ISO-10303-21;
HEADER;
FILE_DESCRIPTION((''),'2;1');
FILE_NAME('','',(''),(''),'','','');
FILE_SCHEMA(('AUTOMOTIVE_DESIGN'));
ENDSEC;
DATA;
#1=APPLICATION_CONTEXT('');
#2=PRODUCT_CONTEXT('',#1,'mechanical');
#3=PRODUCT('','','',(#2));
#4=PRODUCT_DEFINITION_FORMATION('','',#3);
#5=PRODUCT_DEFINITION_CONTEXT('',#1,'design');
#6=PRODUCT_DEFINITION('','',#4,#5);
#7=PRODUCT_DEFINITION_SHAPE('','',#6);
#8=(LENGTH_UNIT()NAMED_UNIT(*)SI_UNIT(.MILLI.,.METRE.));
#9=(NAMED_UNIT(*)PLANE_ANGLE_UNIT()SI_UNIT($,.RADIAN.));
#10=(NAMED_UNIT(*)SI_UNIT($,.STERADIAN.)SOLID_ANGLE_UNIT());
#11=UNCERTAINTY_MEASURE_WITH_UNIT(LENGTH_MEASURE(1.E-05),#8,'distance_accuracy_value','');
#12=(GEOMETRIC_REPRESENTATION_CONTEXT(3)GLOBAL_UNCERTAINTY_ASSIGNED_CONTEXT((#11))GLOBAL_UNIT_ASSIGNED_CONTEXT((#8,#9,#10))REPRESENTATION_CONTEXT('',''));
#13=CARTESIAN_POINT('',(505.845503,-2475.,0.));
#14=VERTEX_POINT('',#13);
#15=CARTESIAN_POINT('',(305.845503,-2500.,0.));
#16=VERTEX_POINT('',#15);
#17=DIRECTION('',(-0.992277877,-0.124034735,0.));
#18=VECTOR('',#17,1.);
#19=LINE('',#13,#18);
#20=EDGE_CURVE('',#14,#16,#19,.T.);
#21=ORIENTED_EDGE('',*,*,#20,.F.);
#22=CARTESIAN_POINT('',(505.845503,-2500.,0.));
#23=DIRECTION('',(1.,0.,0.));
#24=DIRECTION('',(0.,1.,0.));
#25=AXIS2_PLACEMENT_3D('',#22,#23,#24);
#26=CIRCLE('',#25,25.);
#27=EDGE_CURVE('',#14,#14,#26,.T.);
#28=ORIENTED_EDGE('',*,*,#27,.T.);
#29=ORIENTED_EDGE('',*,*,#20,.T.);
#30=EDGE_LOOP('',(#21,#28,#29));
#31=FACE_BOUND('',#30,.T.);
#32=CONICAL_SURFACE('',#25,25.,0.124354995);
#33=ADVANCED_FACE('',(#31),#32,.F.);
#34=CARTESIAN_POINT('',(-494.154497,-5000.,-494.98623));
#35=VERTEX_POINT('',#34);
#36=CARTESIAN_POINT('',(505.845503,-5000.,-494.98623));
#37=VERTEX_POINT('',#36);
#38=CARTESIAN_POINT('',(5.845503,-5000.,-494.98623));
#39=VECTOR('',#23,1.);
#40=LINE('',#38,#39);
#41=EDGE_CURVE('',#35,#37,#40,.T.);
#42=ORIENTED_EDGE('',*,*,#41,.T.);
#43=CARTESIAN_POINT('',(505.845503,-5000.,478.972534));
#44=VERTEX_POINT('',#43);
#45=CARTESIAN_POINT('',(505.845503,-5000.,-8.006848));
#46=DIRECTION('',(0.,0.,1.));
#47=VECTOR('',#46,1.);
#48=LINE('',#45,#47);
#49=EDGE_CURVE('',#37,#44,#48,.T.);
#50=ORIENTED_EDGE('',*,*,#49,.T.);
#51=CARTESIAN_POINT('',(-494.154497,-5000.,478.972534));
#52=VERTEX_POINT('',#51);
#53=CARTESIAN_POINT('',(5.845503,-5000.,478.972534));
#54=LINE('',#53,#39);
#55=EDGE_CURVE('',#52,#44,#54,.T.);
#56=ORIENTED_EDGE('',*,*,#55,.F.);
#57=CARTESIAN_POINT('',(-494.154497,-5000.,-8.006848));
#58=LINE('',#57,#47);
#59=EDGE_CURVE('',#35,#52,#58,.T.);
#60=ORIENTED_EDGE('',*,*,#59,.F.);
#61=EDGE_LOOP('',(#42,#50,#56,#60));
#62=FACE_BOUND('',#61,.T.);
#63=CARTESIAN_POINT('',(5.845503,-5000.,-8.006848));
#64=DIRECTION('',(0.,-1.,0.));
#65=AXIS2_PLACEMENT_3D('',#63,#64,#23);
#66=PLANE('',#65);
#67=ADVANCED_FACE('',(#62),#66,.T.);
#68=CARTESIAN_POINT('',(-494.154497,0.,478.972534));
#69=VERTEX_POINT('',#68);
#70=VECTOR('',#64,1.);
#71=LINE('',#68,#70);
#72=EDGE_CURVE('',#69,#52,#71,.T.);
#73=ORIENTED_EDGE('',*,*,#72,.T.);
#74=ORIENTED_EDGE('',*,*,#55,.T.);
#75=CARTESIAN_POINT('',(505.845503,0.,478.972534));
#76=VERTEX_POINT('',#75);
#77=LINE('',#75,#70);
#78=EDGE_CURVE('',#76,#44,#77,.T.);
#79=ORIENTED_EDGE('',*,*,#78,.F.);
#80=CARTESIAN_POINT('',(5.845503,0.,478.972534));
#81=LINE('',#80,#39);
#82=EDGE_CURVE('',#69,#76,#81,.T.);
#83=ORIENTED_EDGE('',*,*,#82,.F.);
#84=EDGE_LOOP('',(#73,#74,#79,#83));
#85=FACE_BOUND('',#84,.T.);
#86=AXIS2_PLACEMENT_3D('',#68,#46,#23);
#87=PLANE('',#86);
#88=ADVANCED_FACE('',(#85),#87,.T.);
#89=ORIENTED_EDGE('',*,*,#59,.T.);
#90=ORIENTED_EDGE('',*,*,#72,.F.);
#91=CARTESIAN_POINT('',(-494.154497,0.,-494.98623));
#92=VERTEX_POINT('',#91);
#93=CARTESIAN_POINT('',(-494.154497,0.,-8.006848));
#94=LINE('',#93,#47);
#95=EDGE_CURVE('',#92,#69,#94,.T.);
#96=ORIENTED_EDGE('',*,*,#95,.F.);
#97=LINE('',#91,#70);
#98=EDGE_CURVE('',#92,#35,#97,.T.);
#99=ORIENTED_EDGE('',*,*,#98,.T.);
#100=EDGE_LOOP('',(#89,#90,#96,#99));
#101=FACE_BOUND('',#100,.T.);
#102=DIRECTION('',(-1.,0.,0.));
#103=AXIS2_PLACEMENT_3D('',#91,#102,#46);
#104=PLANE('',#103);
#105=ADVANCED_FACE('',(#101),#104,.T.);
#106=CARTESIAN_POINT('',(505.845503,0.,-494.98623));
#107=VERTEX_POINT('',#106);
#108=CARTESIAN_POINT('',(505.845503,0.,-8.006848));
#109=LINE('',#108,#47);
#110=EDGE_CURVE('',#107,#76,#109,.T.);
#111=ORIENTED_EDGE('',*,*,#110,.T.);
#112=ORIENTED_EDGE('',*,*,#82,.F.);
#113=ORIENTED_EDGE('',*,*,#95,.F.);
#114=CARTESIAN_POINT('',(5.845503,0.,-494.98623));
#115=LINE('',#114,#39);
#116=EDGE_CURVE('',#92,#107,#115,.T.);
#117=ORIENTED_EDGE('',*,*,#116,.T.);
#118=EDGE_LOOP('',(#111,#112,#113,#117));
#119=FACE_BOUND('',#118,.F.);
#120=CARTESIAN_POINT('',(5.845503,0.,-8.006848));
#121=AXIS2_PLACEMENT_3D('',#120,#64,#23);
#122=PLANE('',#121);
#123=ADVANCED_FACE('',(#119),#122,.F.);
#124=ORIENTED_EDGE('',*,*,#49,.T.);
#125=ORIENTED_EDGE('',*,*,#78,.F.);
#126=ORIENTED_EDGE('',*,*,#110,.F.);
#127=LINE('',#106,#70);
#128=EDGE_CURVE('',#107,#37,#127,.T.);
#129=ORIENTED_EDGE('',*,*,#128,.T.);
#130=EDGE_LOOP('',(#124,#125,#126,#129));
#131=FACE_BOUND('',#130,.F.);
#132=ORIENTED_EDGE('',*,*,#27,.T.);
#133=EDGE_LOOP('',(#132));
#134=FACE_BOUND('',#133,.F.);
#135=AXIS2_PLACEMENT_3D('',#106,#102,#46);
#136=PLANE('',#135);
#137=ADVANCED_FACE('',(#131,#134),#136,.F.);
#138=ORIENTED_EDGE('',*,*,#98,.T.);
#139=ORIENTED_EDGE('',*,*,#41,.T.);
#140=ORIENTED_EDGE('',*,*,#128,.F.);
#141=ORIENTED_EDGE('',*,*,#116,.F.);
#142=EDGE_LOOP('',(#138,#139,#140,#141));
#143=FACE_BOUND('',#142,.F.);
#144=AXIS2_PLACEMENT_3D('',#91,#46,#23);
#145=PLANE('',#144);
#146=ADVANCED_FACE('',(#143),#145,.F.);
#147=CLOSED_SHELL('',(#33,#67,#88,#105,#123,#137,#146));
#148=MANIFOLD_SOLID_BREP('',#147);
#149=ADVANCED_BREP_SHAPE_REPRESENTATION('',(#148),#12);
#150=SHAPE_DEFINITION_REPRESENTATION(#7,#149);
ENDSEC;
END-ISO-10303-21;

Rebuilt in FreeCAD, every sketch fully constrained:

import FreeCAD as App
import Part
import Sketcher


def add_polygon(sketch, points):
    """Adds a closed chain of lines whose ends are joined by coincident constraints."""
    first, n = sketch.GeometryCount, len(points)
    for a, b in zip(points, points[1:] + points[:1]):
        sketch.addGeometry(Part.LineSegment(App.Vector(*a, 0), App.Vector(*b, 0)), False)
    for i in range(n):
        sketch.addConstraint(Sketcher.Constraint("Coincident", first + i, 2, first + (i + 1) % n, 1))

doc = App.newDocument("Part")
params = doc.addObject("Spreadsheet::Sheet", "Params")
for row, (alias, value) in enumerate([
    ("sketch1_width", "1000 mm"),
    ("pad1_length", "5000 mm"),
    ("sketch2_width", "200 mm"),
    ("sketch2_height", "25 mm"),
    ("groove_angle", "360 deg"),
], start=1):
    params.set(f"A{row}", alias)
    params.set(f"B{row}", "=" + value)
    params.setAlias(f"B{row}", alias)

body = doc.addObject("PartDesign::Body", "Body")

# Sketch on XZ plane
sketch1 = body.newObject("Sketcher::SketchObject", "Sketch")
sketch1.AttachmentSupport = (doc.getObject("XZ_Plane"), [""])
sketch1.MapMode = "FlatFace"
add_polygon(sketch1, [(-494, 479), (-494, -495), (506, -495), (506, 479)])  # lines 0-3
sketch1.addConstraint(Sketcher.Constraint("Vertical", 0))
sketch1.addConstraint(Sketcher.Constraint("Horizontal", 1))
sketch1.addConstraint(Sketcher.Constraint("Vertical", 2))
sketch1.addConstraint(Sketcher.Constraint("Horizontal", 3))
sketch1.addConstraint(Sketcher.Constraint("DistanceX", 1, 1, 1, 2, 1000.0))
sketch1.addConstraint(Sketcher.Constraint("DistanceY", 0, 2, 0, 1, 973.958764))
sketch1.addConstraint(Sketcher.Constraint("DistanceY", 0, 2, -1, 1, 494.98623))
sketch1.addConstraint(Sketcher.Constraint("DistanceX", 0, 2, -1, 1, 494.154497))
sketch1.setExpression("Constraints[8]", "Params.sketch1_width")
pad1 = body.newObject("PartDesign::Pad", "Pad")
pad1.Profile = sketch1
pad1.setExpression("Length", "Params.pad1_length")

# Sketch on XY plane
sketch2 = body.newObject("Sketcher::SketchObject", "Sketch001")
sketch2.AttachmentSupport = (doc.getObject("XY_Plane"), [""])
sketch2.MapMode = "FlatFace"
add_polygon(sketch2, [(306, -2500), (506, -2500), (506, -2475)])  # lines 0-2
sketch2.addGeometry(Part.LineSegment(App.Vector(306, -2500, 0), App.Vector(506, -2500, 0)), True)  # axis
sketch2.addConstraint(Sketcher.Constraint("Horizontal", 0))
sketch2.addConstraint(Sketcher.Constraint("Vertical", 1))
sketch2.addConstraint(Sketcher.Constraint("Horizontal", 3))
sketch2.addConstraint(Sketcher.Constraint("Coincident", 3, 1, 2, 2))
sketch2.addConstraint(Sketcher.Constraint("Vertical", 1, 2, 3, 2))
sketch2.addConstraint(Sketcher.Constraint("DistanceX", 0, 1, 0, 2, 200.0))
sketch2.addConstraint(Sketcher.Constraint("DistanceY", 1, 1, 1, 2, 25.0))
sketch2.addConstraint(Sketcher.Constraint("DistanceY", 0, 2, -1, 1, 2500.0))
sketch2.addConstraint(Sketcher.Constraint("DistanceX", -1, 1, 0, 2, 505.845503))
sketch2.setExpression("Constraints[8]", "Params.sketch2_width")
sketch2.setExpression("Constraints[9]", "Params.sketch2_height")
groove = body.newObject("PartDesign::Groove", "Groove")
groove.Profile = sketch2
groove.ReferenceAxis = (sketch2, ["Axis0"])
groove.setExpression("Angle", "Params.groove_angle")

doc.recompute()
